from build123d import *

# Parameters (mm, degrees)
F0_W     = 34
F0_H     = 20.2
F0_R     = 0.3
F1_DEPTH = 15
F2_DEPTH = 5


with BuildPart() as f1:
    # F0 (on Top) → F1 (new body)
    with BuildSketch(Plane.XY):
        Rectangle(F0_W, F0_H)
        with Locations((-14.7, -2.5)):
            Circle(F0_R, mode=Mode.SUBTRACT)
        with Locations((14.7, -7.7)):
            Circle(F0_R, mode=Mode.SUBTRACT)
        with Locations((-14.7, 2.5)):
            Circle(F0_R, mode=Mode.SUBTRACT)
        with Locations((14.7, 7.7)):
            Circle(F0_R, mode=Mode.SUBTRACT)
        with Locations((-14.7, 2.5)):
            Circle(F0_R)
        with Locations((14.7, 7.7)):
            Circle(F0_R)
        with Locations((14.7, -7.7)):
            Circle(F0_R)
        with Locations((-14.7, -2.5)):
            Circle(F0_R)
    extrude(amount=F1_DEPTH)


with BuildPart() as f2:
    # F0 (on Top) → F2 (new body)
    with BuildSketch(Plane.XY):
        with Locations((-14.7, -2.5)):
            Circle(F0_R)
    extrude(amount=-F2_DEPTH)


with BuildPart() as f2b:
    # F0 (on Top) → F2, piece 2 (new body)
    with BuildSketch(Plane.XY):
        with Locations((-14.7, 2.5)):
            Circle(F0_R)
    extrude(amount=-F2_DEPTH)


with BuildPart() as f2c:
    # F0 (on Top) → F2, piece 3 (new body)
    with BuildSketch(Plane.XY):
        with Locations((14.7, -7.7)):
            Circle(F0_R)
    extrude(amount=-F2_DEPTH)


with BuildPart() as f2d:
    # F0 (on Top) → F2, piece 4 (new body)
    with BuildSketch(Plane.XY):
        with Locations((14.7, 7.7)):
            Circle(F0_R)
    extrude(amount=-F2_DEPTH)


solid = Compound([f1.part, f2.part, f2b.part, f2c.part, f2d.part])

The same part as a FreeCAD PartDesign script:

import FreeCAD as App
import Part
import Sketcher
from FreeCAD import Vector
Q = App.Units.Quantity


def add_polygon(sketch, points):
    """Adds a closed chain of lines whose ends are joined by coincident constraints."""
    first, n = sketch.GeometryCount, len(points)
    for a, b in zip(points, points[1:] + points[:1]):
        sketch.addGeometry(Part.LineSegment(App.Vector(*a, 0), App.Vector(*b, 0)), False)
    for i in range(n):
        sketch.addConstraint(Sketcher.Constraint("Coincident", first + i, 2, first + (i + 1) % n, 1))

doc = App.newDocument("Part")
body = doc.addObject("PartDesign::Body", "Body")

sketch1 = body.newObject("Sketcher::SketchObject", "Sketch")
sketch1.AttachmentSupport = (doc.getObject("XY_Plane"), [""])
sketch1.MapMode = "FlatFace"
add_polygon(sketch1, [(-17, 10), (-17, -10), (17, -10), (17, 10)])
sketch1.addConstraint([
    Sketcher.Constraint("Vertical", 0),
    Sketcher.Constraint("Horizontal", 1),
    Sketcher.Constraint("Vertical", 2),
    Sketcher.Constraint("Horizontal", 3),
    Sketcher.Constraint("Symmetric", 0, 2, 2, 2, -1, 1),
    Sketcher.Constraint("DistanceX", 1, 1, 1, 2, Q("34 mm")),
    Sketcher.Constraint("DistanceY", 0, 2, 0, 1, Q("20.2 mm")),
])
pad1 = body.newObject("PartDesign::Pad", "Pad")
pad1.Profile = sketch1
pad1.Length = 15
body2 = doc.addObject("PartDesign::Body", "Body001")

sketch2 = body2.newObject("Sketcher::SketchObject", "Sketch001")
sketch2.AttachmentSupport = (doc.getObject("XY_Plane001"), [""])
sketch2.MapMode = "FlatFace"
sketch2.addGeometry(Part.Circle(Vector(-14.7, -2.5, 0), Vector(0, 0, 1), 0.3), False)
sketch2.addConstraint([
    Sketcher.Constraint("Diameter", 0, Q("0.6 mm")),
    Sketcher.Constraint("DistanceX", 0, 3, -1, 1, Q("14.7 mm")),
    Sketcher.Constraint("DistanceY", 0, 3, -1, 1, Q("2.5 mm")),
])
pad2 = body2.newObject("PartDesign::Pad", "Pad001")
pad2.Profile = sketch2
pad2.Length = 5
pad2.Reversed = True
body3 = doc.addObject("PartDesign::Body", "Body002")

sketch3 = body3.newObject("Sketcher::SketchObject", "Sketch002")
sketch3.AttachmentSupport = (doc.getObject("XY_Plane002"), [""])
sketch3.MapMode = "FlatFace"
sketch3.addGeometry(Part.Circle(Vector(-14.7, 2.5, 0), Vector(0, 0, 1), 0.3), False)
sketch3.addConstraint([
    Sketcher.Constraint("Diameter", 0, Q("0.6 mm")),
    Sketcher.Constraint("DistanceX", 0, 3, -1, 1, Q("14.7 mm")),
    Sketcher.Constraint("DistanceY", -1, 1, 0, 3, Q("2.5 mm")),
])
pad3 = body3.newObject("PartDesign::Pad", "Pad002")
pad3.Profile = sketch3
pad3.Length = 5
pad3.Reversed = True
body4 = doc.addObject("PartDesign::Body", "Body003")

sketch4 = body4.newObject("Sketcher::SketchObject", "Sketch003")
sketch4.AttachmentSupport = (doc.getObject("XY_Plane003"), [""])
sketch4.MapMode = "FlatFace"
sketch4.addGeometry(Part.Circle(Vector(14.7, -7.7, 0), Vector(0, 0, 1), 0.3), False)
sketch4.addConstraint([
    Sketcher.Constraint("Diameter", 0, Q("0.6 mm")),
    Sketcher.Constraint("DistanceX", -1, 1, 0, 3, Q("14.7 mm")),
    Sketcher.Constraint("DistanceY", 0, 3, -1, 1, Q("7.7 mm")),
])
pad4 = body4.newObject("PartDesign::Pad", "Pad003")
pad4.Profile = sketch4
pad4.Length = 5
pad4.Reversed = True
body5 = doc.addObject("PartDesign::Body", "Body004")

sketch5 = body5.newObject("Sketcher::SketchObject", "Sketch004")
sketch5.AttachmentSupport = (doc.getObject("XY_Plane004"), [""])
sketch5.MapMode = "FlatFace"
sketch5.addGeometry(Part.Circle(Vector(14.7, 7.7, 0), Vector(0, 0, 1), 0.3), False)
sketch5.addConstraint([
    Sketcher.Constraint("Diameter", 0, Q("0.6 mm")),
    Sketcher.Constraint("DistanceX", -1, 1, 0, 3, Q("14.7 mm")),
    Sketcher.Constraint("DistanceY", -1, 1, 0, 3, Q("7.7 mm")),
])
pad5 = body5.newObject("PartDesign::Pad", "Pad004")
pad5.Profile = sketch5
pad5.Length = 5
pad5.Reversed = True

doc.recompute()
